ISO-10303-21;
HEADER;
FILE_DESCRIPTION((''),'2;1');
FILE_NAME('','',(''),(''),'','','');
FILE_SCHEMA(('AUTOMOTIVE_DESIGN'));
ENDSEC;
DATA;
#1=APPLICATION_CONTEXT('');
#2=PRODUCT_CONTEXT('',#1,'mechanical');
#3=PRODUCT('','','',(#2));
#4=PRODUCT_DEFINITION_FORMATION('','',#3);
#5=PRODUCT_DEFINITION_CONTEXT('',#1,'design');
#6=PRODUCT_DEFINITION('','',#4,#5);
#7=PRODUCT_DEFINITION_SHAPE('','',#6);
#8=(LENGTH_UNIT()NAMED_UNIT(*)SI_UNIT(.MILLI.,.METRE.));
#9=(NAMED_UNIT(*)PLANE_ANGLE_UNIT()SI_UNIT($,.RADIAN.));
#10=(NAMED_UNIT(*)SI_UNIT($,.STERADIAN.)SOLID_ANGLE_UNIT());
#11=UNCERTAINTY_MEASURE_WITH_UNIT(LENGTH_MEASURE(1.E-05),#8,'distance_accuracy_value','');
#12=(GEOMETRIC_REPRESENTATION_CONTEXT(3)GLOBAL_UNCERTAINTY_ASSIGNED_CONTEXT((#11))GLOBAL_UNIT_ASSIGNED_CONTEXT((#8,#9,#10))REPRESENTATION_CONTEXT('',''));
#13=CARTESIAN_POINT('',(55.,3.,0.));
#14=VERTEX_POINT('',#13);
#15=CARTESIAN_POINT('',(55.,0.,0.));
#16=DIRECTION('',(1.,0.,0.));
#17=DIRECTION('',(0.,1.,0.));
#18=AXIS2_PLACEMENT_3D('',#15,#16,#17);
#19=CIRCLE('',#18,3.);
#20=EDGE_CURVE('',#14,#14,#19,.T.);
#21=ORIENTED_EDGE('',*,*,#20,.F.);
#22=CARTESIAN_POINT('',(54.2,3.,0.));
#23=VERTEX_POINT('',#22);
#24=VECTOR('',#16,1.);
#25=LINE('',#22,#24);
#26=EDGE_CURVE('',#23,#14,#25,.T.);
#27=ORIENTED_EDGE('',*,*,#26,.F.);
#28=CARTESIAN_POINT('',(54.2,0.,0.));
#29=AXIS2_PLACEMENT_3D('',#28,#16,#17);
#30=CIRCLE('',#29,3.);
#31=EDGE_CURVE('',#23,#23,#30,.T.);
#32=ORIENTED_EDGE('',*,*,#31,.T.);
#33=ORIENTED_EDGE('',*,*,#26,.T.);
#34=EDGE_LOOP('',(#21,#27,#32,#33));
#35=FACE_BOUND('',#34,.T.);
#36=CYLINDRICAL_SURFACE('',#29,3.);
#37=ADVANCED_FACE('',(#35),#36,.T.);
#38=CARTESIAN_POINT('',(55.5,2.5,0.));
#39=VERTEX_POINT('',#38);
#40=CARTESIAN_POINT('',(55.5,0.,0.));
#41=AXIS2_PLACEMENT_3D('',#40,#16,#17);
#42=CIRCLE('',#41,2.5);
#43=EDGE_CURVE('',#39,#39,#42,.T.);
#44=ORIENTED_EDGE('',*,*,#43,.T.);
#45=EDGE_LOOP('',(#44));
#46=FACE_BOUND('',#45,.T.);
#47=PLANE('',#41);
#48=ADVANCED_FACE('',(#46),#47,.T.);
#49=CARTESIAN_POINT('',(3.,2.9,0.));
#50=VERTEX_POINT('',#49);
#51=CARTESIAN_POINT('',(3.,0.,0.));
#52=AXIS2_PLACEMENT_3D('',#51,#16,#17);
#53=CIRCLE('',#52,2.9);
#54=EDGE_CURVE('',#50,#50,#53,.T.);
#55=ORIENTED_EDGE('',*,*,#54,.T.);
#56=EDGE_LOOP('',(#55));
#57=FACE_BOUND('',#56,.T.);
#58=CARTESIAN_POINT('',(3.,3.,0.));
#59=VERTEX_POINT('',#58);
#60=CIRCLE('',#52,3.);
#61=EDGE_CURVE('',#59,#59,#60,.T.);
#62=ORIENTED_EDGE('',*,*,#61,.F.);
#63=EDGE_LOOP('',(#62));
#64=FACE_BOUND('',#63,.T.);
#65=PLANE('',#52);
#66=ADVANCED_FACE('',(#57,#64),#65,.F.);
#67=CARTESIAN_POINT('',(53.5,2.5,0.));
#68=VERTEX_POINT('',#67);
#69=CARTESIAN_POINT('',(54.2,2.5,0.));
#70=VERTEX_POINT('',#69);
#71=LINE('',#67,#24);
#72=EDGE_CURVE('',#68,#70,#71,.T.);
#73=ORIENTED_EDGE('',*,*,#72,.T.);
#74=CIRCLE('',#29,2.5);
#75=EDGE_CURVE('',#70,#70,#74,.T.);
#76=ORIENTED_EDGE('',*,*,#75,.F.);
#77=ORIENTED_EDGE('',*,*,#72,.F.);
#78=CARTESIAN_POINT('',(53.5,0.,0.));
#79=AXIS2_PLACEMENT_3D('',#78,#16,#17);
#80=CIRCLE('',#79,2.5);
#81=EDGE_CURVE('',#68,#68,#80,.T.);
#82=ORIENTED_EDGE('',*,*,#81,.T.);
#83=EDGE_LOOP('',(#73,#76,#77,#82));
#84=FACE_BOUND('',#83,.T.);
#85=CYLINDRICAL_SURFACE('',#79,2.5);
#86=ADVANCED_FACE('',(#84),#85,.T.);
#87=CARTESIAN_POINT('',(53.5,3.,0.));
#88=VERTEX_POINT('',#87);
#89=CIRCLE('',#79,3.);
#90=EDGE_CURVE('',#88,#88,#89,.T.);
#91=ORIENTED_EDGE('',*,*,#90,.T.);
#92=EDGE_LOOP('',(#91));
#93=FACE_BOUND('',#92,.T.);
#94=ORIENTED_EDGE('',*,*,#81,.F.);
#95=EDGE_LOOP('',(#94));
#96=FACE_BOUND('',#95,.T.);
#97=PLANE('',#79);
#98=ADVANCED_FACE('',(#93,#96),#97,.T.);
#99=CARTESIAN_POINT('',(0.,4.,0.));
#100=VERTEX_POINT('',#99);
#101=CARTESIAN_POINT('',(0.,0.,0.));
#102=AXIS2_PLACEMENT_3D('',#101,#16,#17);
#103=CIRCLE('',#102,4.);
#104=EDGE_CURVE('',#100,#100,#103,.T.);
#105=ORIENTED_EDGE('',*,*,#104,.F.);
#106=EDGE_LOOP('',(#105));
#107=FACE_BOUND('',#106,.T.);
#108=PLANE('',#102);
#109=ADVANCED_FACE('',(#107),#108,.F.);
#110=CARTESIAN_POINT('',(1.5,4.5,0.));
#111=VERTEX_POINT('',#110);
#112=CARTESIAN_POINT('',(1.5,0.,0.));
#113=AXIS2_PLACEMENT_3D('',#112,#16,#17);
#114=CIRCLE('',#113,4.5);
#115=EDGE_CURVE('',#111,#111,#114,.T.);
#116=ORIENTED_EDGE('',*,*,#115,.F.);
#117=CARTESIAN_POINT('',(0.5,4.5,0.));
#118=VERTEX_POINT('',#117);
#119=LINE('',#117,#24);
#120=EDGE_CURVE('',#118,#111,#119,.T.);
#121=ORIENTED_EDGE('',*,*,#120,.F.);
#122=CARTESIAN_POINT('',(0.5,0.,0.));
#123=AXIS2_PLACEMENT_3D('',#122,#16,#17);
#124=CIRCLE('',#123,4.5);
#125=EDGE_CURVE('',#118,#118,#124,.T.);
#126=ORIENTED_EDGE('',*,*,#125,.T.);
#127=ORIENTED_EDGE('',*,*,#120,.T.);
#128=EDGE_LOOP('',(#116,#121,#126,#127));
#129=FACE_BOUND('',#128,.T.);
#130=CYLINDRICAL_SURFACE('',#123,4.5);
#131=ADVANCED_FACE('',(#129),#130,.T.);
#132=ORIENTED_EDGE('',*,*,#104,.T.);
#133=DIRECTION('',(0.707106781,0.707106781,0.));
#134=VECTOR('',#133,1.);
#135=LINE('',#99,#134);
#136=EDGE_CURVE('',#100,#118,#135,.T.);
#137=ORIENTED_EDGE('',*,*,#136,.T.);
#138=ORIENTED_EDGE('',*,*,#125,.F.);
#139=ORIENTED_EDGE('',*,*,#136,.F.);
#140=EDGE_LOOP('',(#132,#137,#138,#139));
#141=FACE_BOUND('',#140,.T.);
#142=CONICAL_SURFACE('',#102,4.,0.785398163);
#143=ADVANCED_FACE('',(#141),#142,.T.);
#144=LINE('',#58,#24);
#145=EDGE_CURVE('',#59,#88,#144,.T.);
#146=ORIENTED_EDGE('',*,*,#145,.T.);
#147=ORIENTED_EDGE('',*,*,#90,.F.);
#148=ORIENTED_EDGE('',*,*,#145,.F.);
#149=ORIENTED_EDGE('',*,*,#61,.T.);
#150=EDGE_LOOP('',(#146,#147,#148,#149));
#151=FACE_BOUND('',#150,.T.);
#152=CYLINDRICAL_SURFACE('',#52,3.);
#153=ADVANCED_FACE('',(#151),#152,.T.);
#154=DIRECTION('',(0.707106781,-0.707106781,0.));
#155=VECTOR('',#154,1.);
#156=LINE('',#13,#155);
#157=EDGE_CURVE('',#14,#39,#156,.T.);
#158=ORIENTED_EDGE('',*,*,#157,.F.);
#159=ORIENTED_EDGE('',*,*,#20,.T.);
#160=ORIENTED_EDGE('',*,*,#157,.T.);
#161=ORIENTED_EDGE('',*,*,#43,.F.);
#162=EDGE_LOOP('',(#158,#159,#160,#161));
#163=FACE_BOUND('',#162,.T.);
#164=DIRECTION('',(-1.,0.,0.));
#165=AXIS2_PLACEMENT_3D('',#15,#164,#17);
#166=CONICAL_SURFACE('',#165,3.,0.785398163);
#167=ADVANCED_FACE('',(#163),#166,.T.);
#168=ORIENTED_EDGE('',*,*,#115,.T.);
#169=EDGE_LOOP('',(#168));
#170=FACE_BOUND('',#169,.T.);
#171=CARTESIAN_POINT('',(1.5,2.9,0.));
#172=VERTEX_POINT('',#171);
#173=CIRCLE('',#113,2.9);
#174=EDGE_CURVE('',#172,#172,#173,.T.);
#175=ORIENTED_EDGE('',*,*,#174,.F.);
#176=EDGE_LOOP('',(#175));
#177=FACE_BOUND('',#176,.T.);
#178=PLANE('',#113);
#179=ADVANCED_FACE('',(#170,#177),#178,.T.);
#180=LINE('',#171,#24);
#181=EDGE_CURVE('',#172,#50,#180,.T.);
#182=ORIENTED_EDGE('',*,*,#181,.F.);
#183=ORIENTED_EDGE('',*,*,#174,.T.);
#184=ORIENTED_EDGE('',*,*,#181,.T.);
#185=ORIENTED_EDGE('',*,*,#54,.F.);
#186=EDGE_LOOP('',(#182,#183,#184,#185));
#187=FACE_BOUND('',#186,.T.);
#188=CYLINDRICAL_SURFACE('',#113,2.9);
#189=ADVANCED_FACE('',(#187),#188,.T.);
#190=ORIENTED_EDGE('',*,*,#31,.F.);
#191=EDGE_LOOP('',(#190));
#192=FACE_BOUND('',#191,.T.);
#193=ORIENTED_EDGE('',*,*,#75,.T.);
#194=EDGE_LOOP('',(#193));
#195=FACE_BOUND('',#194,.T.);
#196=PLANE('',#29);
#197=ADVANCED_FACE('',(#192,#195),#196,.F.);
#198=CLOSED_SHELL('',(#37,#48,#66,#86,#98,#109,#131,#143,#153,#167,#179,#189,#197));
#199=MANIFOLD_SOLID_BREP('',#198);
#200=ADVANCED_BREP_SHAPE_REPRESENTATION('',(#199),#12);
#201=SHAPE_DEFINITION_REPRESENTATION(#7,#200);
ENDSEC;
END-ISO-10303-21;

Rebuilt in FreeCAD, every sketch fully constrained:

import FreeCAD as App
import Part
import Sketcher
Q = App.Units.Quantity

doc = App.newDocument("Part")
body = doc.addObject("PartDesign::Body", "Body")

sketch1 = body.newObject("Sketcher::SketchObject", "Sketch")
sketch1.AttachmentSupport = (doc.getObject("XY_Plane"), [""])
sketch1.MapMode = "FlatFace"
sketch1.addGeometry([
    Part.LineSegment(App.Vector(0, 0, 0), App.Vector(55.5, 0, 0)),
    Part.LineSegment(App.Vector(55.5, 0, 0), App.Vector(55.5, 2.5, 0)),
    Part.LineSegment(App.Vector(55.5, 2.5, 0), App.Vector(55, 3, 0)),
    Part.LineSegment(App.Vector(55, 3, 0), App.Vector(54.2, 3, 0)),
    Part.LineSegment(App.Vector(54.2, 3, 0), App.Vector(54.2, 2.5, 0)),
    Part.LineSegment(App.Vector(54.2, 2.5, 0), App.Vector(53.5, 2.5, 0)),
    Part.LineSegment(App.Vector(53.5, 2.5, 0), App.Vector(53.5, 3, 0)),
    Part.LineSegment(App.Vector(53.5, 3, 0), App.Vector(3, 3, 0)),
    Part.LineSegment(App.Vector(3, 3, 0), App.Vector(3, 2.9, 0)),
    Part.LineSegment(App.Vector(3, 2.9, 0), App.Vector(1.5, 2.9, 0)),
    Part.LineSegment(App.Vector(1.5, 2.9, 0), App.Vector(1.5, 4.5, 0)),
    Part.LineSegment(App.Vector(1.5, 4.5, 0), App.Vector(0.5, 4.5, 0)),
    Part.LineSegment(App.Vector(0.5, 4.5, 0), App.Vector(0, 4, 0)),
    Part.LineSegment(App.Vector(0, 4, 0), App.Vector(0, 0, 0)),
], False)
sketch1.addConstraint([
    Sketcher.Constraint("Coincident", 0, 2, 1, 1),
    Sketcher.Constraint("Coincident", 1, 2, 2, 1),
    Sketcher.Constraint("Coincident", 2, 2, 3, 1),
    Sketcher.Constraint("Coincident", 3, 2, 4, 1),
    Sketcher.Constraint("Coincident", 4, 2, 5, 1),
    Sketcher.Constraint("Coincident", 5, 2, 6, 1),
    Sketcher.Constraint("Coincident", 6, 2, 7, 1),
    Sketcher.Constraint("Coincident", 7, 2, 8, 1),
    Sketcher.Constraint("Coincident", 8, 2, 9, 1),
    Sketcher.Constraint("Coincident", 9, 2, 10, 1),
    Sketcher.Constraint("Coincident", 10, 2, 11, 1),
    Sketcher.Constraint("Coincident", 11, 2, 12, 1),
    Sketcher.Constraint("Coincident", 12, 2, 13, 1),
    Sketcher.Constraint("Coincident", 13, 2, 0, 1),
    Sketcher.Constraint("Horizontal", 0),
    Sketcher.Constraint("Vertical", 1),
    Sketcher.Constraint("Horizontal", 3),
    Sketcher.Constraint("Vertical", 4),
    Sketcher.Constraint("Horizontal", 5),
    Sketcher.Constraint("Vertical", 6),
    Sketcher.Constraint("Horizontal", 7),
    Sketcher.Constraint("Vertical", 8),
    Sketcher.Constraint("Horizontal", 9),
    Sketcher.Constraint("Vertical", 10),
    Sketcher.Constraint("Horizontal", 11),
    Sketcher.Constraint("Vertical", 13),
    Sketcher.Constraint("Coincident", 13, 2, -1, 1),
    Sketcher.Constraint("Perpendicular", 2, 12),
    Sketcher.Constraint("Horizontal", 1, 2, 4, 2),
    Sketcher.Constraint("Horizontal", 3, 2, 6, 2),
    Sketcher.Constraint("Equal", 2, 12),
    Sketcher.Constraint("DistanceX", 11, 2, 11, 1, 1.0),
    Sketcher.Constraint("DistanceY", 13, 2, 13, 1, 4.0),
    Sketcher.Constraint("Angle", 2, Q("135 deg")),
    Sketcher.Constraint("DistanceX", 0, 1, 0, 2, 55.5),
    Sketcher.Constraint("DistanceX", 3, 2, 3, 1, 0.8),
    Sketcher.Constraint("DistanceX", 5, 2, 5, 1, 0.7),
    Sketcher.Constraint("DistanceX", 7, 2, 7, 1, 50.5),
    Sketcher.Constraint("DistanceX", 9, 2, 9, 1, 1.5),
    Sketcher.Constraint("DistanceY", 1, 1, 1, 2, 2.5),
    Sketcher.Constraint("DistanceY", 8, 2, 8, 1, 0.1),
])
revolution = body.newObject("PartDesign::Revolution", "Revolution")
revolution.Profile = sketch1
revolution.ReferenceAxis = (sketch1, ["H_Axis"])
revolution.Angle = 360

doc.recompute()
